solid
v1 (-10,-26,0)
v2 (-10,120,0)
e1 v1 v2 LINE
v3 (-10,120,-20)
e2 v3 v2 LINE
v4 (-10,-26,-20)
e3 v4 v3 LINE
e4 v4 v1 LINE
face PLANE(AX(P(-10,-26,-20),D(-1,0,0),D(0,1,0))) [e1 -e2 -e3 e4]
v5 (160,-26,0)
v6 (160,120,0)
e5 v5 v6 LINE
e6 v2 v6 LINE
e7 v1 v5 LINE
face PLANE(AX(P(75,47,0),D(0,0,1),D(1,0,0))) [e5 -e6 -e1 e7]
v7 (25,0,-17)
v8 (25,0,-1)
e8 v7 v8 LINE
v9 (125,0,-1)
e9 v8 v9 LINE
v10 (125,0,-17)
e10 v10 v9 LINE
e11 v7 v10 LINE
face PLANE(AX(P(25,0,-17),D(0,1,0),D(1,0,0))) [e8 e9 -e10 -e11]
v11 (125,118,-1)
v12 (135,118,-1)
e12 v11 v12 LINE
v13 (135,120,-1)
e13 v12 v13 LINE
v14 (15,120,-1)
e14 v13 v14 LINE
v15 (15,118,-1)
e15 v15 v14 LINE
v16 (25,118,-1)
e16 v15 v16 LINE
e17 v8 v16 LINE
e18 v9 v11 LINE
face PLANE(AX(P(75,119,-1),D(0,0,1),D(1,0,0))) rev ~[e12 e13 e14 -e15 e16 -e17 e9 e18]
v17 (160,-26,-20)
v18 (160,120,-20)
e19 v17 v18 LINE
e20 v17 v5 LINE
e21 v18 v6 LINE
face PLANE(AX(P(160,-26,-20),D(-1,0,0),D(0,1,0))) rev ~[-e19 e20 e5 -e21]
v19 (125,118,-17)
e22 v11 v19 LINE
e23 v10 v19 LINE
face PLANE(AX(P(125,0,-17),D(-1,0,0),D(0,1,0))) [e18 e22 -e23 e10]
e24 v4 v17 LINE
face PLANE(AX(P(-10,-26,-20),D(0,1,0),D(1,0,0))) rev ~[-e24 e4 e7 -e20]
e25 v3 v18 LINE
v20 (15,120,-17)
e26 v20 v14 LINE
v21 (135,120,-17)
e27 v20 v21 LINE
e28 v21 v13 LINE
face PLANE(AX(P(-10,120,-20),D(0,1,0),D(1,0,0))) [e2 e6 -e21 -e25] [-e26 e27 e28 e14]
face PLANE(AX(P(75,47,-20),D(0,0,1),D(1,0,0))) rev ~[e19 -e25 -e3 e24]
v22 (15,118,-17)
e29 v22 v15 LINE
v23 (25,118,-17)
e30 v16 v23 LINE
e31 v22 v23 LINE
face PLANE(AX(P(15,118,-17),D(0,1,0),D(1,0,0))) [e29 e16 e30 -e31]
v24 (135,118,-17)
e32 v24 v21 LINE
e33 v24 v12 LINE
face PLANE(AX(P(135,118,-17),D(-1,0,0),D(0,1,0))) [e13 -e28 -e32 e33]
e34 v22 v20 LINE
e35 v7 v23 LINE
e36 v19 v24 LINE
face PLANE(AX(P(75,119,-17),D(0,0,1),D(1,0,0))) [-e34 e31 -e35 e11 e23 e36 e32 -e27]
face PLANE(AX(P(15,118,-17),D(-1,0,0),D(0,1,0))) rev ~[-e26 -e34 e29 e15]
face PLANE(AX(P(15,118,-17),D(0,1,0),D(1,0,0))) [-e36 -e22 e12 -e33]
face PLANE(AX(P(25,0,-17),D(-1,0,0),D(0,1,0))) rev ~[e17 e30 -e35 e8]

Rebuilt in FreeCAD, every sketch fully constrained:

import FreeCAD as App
import Part
import Sketcher
Q = App.Units.Quantity


def add_polygon(sketch, points):
    """Adds a closed chain of lines whose ends are joined by coincident constraints."""
    first, n = sketch.GeometryCount, len(points)
    for a, b in zip(points, points[1:] + points[:1]):
        sketch.addGeometry(Part.LineSegment(App.Vector(*a, 0), App.Vector(*b, 0)), False)
    for i in range(n):
        sketch.addConstraint(Sketcher.Constraint("Coincident", first + i, 2, first + (i + 1) % n, 1))

doc = App.newDocument("Part")
body = doc.addObject("PartDesign::Body", "Body")

# Sketch on XY plane
sketch1 = doc.addObject("Sketcher::SketchObject", "Sketch")
body.addObject(sketch1)
sketch1.AttachmentSupport = (doc.XY_Plane, [""])
sketch1.MapMode = "FlatFace"
sketch1.AttachmentOffset = App.Placement(App.Vector(0, 0, -17), App.Rotation())
add_polygon(sketch1, [(15, 120), (15, 118), (135, 118), (135, 120)])  # lines 0-3
sketch1.addConstraint(Sketcher.Constraint("Vertical", 0))
sketch1.addConstraint(Sketcher.Constraint("Horizontal", 1))
sketch1.addConstraint(Sketcher.Constraint("Vertical", 2))
sketch1.addConstraint(Sketcher.Constraint("Horizontal", 3))
sketch1.addConstraint(Sketcher.Constraint("DistanceX", 1, 1, 1, 2, Q("120 mm")))
sketch1.addConstraint(Sketcher.Constraint("DistanceY", 0, 2, 0, 1, Q("2 mm")))
sketch1.addConstraint(Sketcher.Constraint("DistanceX", -1, 1, 0, 2, Q("15 mm")))
sketch1.addConstraint(Sketcher.Constraint("DistanceY", -1, 1, 0, 2, Q("118 mm")))
pad1 = doc.addObject("PartDesign::Pad", "Pad")
body.addObject(pad1)
pad1.Profile = sketch1
pad1.Length = 16
body2 = doc.addObject("PartDesign::Body", "Body001")

# Sketch on XY plane
sketch2 = doc.addObject("Sketcher::SketchObject", "Sketch001")
body2.addObject(sketch2)
sketch2.AttachmentSupport = (doc.getObject("XY_Plane001"), [""])
sketch2.MapMode = "FlatFace"
sketch2.AttachmentOffset = App.Placement(App.Vector(0, 0, -17), App.Rotation())
add_polygon(sketch2, [(25, 120), (25, 0), (125, 0), (125, 120)])  # lines 0-3
sketch2.addConstraint(Sketcher.Constraint("Vertical", 0))
sketch2.addConstraint(Sketcher.Constraint("Horizontal", 1))
sketch2.addConstraint(Sketcher.Constraint("Vertical", 2))
sketch2.addConstraint(Sketcher.Constraint("Horizontal", 3))
sketch2.addConstraint(Sketcher.Constraint("PointOnObject", 0, 2, -1))
sketch2.addConstraint(Sketcher.Constraint("DistanceX", 1, 1, 1, 2, Q("100 mm")))
sketch2.addConstraint(Sketcher.Constraint("DistanceY", 0, 2, 0, 1, Q("120 mm")))
sketch2.addConstraint(Sketcher.Constraint("DistanceX", -1, 1, 0, 2, Q("25 mm")))
pad2 = doc.addObject("PartDesign::Pad", "Pad001")
body2.addObject(pad2)
pad2.Profile = sketch2
pad2.Length = 16
body3 = doc.addObject("PartDesign::Body", "Body002")

# Sketch on XY plane
sketch3 = doc.addObject("Sketcher::SketchObject", "Sketch002")
body3.addObject(sketch3)
sketch3.AttachmentSupport = (doc.getObject("XY_Plane002"), [""])
sketch3.MapMode = "FlatFace"
sketch3.AttachmentOffset = App.Placement(App.Vector(0, 0, -20), App.Rotation())
add_polygon(sketch3, [(-10, 120), (-10, -26), (160, -26), (160, 120)])  # lines 0-3
sketch3.addConstraint(Sketcher.Constraint("Vertical", 0))
sketch3.addConstraint(Sketcher.Constraint("Horizontal", 1))
sketch3.addConstraint(Sketcher.Constraint("Vertical", 2))
sketch3.addConstraint(Sketcher.Constraint("Horizontal", 3))
sketch3.addConstraint(Sketcher.Constraint("DistanceX", 1, 1, 1, 2, Q("170 mm")))
sketch3.addConstraint(Sketcher.Constraint("DistanceY", 0, 2, 0, 1, Q("146 mm")))
sketch3.addConstraint(Sketcher.Constraint("DistanceX", 0, 2, -1, 1, Q("10 mm")))
sketch3.addConstraint(Sketcher.Constraint("DistanceY", 0, 2, -1, 1, Q("26 mm")))
pad3 = doc.addObject("PartDesign::Pad", "Pad002")
body3.addObject(pad3)
pad3.Profile = sketch3
pad3.Length = 20
doc.recompute()

boolean = doc.addObject("PartDesign::Boolean", "Boolean")
body3.addObject(boolean)
boolean.Type = "Cut"
boolean.addObjects([body2])
doc.recompute()

boolean2 = doc.addObject("PartDesign::Boolean", "Boolean001")
body3.addObject(boolean2)
boolean2.Type = "Cut"
boolean2.addObjects([body])

doc.recompute()
